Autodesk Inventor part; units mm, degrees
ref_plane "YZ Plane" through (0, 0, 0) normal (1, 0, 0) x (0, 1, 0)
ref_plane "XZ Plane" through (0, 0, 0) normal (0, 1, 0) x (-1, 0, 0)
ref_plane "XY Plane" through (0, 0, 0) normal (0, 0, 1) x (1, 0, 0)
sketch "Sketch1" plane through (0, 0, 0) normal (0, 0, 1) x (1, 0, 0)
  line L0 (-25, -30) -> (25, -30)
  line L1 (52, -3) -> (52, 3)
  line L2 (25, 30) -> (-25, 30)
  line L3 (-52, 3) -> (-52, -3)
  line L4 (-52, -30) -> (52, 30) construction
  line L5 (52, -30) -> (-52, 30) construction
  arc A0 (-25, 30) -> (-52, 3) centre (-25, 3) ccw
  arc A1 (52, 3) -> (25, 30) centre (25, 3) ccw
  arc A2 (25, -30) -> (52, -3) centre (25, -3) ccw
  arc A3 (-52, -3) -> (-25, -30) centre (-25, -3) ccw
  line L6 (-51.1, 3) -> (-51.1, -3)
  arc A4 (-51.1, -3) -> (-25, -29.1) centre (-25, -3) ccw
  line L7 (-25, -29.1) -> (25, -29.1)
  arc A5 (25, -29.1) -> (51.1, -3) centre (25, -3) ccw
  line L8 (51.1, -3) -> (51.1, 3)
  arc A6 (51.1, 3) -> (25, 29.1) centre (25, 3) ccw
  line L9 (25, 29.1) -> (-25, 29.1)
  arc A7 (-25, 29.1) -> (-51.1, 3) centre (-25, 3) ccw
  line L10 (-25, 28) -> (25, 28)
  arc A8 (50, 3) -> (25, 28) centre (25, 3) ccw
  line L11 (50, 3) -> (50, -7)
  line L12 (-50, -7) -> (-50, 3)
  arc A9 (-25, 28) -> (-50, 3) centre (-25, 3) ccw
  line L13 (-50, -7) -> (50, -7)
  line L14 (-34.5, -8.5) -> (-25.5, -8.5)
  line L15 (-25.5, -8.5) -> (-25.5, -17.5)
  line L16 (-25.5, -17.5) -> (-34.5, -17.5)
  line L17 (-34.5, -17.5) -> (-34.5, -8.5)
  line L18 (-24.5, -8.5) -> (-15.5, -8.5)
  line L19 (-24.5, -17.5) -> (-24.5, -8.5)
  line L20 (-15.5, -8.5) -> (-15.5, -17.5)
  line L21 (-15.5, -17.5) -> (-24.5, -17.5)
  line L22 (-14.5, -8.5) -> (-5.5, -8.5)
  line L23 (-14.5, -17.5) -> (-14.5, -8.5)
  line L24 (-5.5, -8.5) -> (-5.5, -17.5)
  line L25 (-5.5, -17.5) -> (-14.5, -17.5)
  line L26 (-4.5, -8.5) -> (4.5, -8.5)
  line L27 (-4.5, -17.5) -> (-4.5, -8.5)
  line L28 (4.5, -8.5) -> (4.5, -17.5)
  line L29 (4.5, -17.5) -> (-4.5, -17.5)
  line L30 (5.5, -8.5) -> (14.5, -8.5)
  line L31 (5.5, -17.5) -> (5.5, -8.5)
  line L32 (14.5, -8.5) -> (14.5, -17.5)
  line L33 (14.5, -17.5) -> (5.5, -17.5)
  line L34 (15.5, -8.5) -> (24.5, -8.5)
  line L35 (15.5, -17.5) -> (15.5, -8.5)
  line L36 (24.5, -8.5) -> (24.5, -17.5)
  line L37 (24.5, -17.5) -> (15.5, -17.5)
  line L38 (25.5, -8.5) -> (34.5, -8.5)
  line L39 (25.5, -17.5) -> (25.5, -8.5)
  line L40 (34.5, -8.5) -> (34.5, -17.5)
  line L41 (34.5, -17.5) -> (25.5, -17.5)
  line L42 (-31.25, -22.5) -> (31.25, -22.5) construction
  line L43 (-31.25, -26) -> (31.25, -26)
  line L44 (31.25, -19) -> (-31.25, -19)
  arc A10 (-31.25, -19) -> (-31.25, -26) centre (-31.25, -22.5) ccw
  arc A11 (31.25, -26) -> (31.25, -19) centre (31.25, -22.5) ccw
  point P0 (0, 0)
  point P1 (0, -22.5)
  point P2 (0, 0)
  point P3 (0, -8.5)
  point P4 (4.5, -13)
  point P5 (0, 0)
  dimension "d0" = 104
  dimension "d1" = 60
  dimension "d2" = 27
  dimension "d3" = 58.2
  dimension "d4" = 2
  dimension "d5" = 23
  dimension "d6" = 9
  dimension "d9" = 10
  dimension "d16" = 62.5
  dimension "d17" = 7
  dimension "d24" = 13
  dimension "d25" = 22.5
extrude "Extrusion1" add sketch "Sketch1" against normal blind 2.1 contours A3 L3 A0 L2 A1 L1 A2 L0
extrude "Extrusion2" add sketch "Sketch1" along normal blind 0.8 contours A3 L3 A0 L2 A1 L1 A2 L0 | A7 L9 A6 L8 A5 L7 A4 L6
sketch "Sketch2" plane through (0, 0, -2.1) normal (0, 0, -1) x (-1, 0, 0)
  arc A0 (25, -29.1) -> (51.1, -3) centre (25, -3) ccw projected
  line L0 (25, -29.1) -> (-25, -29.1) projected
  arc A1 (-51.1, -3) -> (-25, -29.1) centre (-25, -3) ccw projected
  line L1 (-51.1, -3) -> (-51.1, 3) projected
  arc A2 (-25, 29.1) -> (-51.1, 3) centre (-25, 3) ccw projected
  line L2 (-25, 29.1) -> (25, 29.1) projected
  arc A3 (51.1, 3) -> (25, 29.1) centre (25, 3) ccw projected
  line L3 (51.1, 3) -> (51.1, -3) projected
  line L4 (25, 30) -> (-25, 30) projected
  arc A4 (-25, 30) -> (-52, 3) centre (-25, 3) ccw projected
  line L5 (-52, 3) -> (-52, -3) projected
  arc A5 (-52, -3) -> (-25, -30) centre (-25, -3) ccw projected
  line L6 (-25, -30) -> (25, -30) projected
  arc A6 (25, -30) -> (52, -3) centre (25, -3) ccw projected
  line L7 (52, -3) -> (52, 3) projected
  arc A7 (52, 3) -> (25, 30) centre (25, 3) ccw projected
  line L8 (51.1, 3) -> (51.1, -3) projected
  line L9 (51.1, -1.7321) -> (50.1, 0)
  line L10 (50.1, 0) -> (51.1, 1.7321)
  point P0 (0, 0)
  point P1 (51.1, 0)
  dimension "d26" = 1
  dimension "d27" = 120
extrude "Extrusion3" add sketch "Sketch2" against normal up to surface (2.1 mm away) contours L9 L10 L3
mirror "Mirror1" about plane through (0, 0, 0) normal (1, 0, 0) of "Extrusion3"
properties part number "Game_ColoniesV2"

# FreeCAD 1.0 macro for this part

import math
import FreeCAD as App
import Part
import Sketcher
Q = App.Units.Quantity

doc = App.newDocument("Part")
body = doc.addObject("PartDesign::Body", "Body")

sketch1 = body.newObject("Sketcher::SketchObject", "Sketch")
sketch1.AttachmentSupport = (doc.getObject("XY_Plane"), [""])
sketch1.MapMode = "FlatFace"
sketch1.addGeometry(Part.ArcOfCircle(Part.Circle(App.Vector(-25, -3, 0), App.Vector(0, 0, 1), 27), math.radians(180), math.radians(270)), False)
sketch1.addGeometry(Part.LineSegment(App.Vector(-25, -30, 0), App.Vector(25, -30, 0)), False)
sketch1.addGeometry(Part.ArcOfCircle(Part.Circle(App.Vector(25, -3, 0), App.Vector(0, 0, 1), 27), math.radians(-90), math.radians(0)), False)
sketch1.addGeometry(Part.LineSegment(App.Vector(52, -3, 0), App.Vector(52, 3, 0)), False)
sketch1.addGeometry(Part.ArcOfCircle(Part.Circle(App.Vector(25, 3, 0), App.Vector(0, 0, 1), 27), math.radians(0), math.radians(90)), False)
sketch1.addGeometry(Part.LineSegment(App.Vector(25, 30, 0), App.Vector(-25, 30, 0)), False)
sketch1.addGeometry(Part.ArcOfCircle(Part.Circle(App.Vector(-25, 3, 0), App.Vector(0, 0, 1), 27), math.radians(90), math.radians(180)), False)
sketch1.addGeometry(Part.LineSegment(App.Vector(-52, 3, 0), App.Vector(-52, -3, 0)), False)
sketch1.addGeometry(Part.LineSegment(App.Vector(-51, -3, 0), App.Vector(-51, 3, 0)), False)
sketch1.addGeometry(Part.ArcOfCircle(Part.Circle(App.Vector(-25, 3, 0), App.Vector(0, 0, 1), 26), math.radians(90), math.radians(180)), False)
sketch1.addGeometry(Part.LineSegment(App.Vector(-25, 29, 0), App.Vector(25, 29, 0)), False)
sketch1.addGeometry(Part.ArcOfCircle(Part.Circle(App.Vector(25, 3, 0), App.Vector(0, 0, 1), 26), math.radians(0), math.radians(90)), False)
sketch1.addGeometry(Part.LineSegment(App.Vector(51, 3, 0), App.Vector(51, -3, 0)), False)
sketch1.addGeometry(Part.ArcOfCircle(Part.Circle(App.Vector(25, -3, 0), App.Vector(0, 0, 1), 26), math.radians(-90), math.radians(0)), False)
sketch1.addGeometry(Part.LineSegment(App.Vector(25, -29, 0), App.Vector(-25, -29, 0)), False)
sketch1.addGeometry(Part.ArcOfCircle(Part.Circle(App.Vector(-25, -3, 0), App.Vector(0, 0, 1), 26), math.radians(180), math.radians(270)), False)
sketch1.addConstraint(Sketcher.Constraint("Tangent", 0, 2, 1, 1))
sketch1.addConstraint(Sketcher.Constraint("Tangent", 1, 2, 2, 1))
sketch1.addConstraint(Sketcher.Constraint("Tangent", 2, 2, 3, 1))
sketch1.addConstraint(Sketcher.Constraint("Tangent", 3, 2, 4, 1))
sketch1.addConstraint(Sketcher.Constraint("Tangent", 4, 2, 5, 1))
sketch1.addConstraint(Sketcher.Constraint("Tangent", 5, 2, 6, 1))
sketch1.addConstraint(Sketcher.Constraint("Tangent", 6, 2, 7, 1))
sketch1.addConstraint(Sketcher.Constraint("Tangent", 7, 2, 0, 1))
sketch1.addConstraint(Sketcher.Constraint("Tangent", 8, 2, 9, 2))
sketch1.addConstraint(Sketcher.Constraint("Tangent", 9, 1, 10, 1))
sketch1.addConstraint(Sketcher.Constraint("Tangent", 10, 2, 11, 2))
sketch1.addConstraint(Sketcher.Constraint("Tangent", 11, 1, 12, 1))
sketch1.addConstraint(Sketcher.Constraint("Tangent", 12, 2, 13, 2))
sketch1.addConstraint(Sketcher.Constraint("Tangent", 13, 1, 14, 1))
sketch1.addConstraint(Sketcher.Constraint("Tangent", 14, 2, 15, 2))
sketch1.addConstraint(Sketcher.Constraint("Tangent", 15, 1, 8, 1))
sketch1.addConstraint(Sketcher.Constraint("Horizontal", 1))
sketch1.addConstraint(Sketcher.Constraint("Vertical", 3))
sketch1.addConstraint(Sketcher.Constraint("Horizontal", 5))
sketch1.addConstraint(Sketcher.Constraint("Vertical", 7))
sketch1.addConstraint(Sketcher.Constraint("Vertical", 8))
sketch1.addConstraint(Sketcher.Constraint("Horizontal", 10))
sketch1.addConstraint(Sketcher.Constraint("Vertical", 12))
sketch1.addConstraint(Sketcher.Constraint("Horizontal", 14))
sketch1.addConstraint(Sketcher.Constraint("Coincident", 9, 3, 6, 3))
sketch1.addConstraint(Sketcher.Constraint("Coincident", 11, 3, 4, 3))
sketch1.addConstraint(Sketcher.Constraint("Coincident", 13, 3, 2, 3))
sketch1.addConstraint(Sketcher.Constraint("Equal", 0, 2))
sketch1.addConstraint(Sketcher.Constraint("Equal", 2, 4))
sketch1.addConstraint(Sketcher.Constraint("Equal", 4, 6))
sketch1.addConstraint(Sketcher.Constraint("Equal", 13, 15))
sketch1.addConstraint(Sketcher.Constraint("Symmetric", 0, 3, 4, 3, -1, 1))
sketch1.addConstraint(Sketcher.Constraint("Radius", 0, 27.0))
sketch1.addConstraint(Sketcher.Constraint("Radius", 9, 26.1))
sketch1.addConstraint(Sketcher.Constraint("DistanceX", 1, 1, 1, 2, 50.0))
sketch1.addConstraint(Sketcher.Constraint("DistanceY", 3, 1, 3, 2, 6.0))
pad1 = body.newObject("PartDesign::Pad", "Pad")
pad1.Profile = sketch1
pad1.Length = 2.1
pad1.Reversed = True

sketch2 = body.newObject("Sketcher::SketchObject", "Sketch001")
sketch2.AttachmentSupport = (doc.getObject("XY_Plane"), [""])
sketch2.MapMode = "FlatFace"
sketch2.addGeometry(Part.ArcOfCircle(Part.Circle(App.Vector(-25, -3, 0), App.Vector(0, 0, 1), 27), math.radians(180), math.radians(270)), False)
sketch2.addGeometry(Part.LineSegment(App.Vector(-25, -30, 0), App.Vector(25, -30, 0)), False)
sketch2.addGeometry(Part.ArcOfCircle(Part.Circle(App.Vector(25, -3, 0), App.Vector(0, 0, 1), 27), math.radians(-90), math.radians(0)), False)
sketch2.addGeometry(Part.LineSegment(App.Vector(52, -3, 0), App.Vector(52, 3, 0)), False)
sketch2.addGeometry(Part.ArcOfCircle(Part.Circle(App.Vector(25, 3, 0), App.Vector(0, 0, 1), 27), math.radians(0), math.radians(90)), False)
sketch2.addGeometry(Part.LineSegment(App.Vector(25, 30, 0), App.Vector(-25, 30, 0)), False)
sketch2.addGeometry(Part.ArcOfCircle(Part.Circle(App.Vector(-25, 3, 0), App.Vector(0, 0, 1), 27), math.radians(90), math.radians(180)), False)
sketch2.addGeometry(Part.LineSegment(App.Vector(-52, 3, 0), App.Vector(-52, -3, 0)), False)
sketch2.addGeometry(Part.LineSegment(App.Vector(34.5, -8.5, 0), App.Vector(34.5, -17.5, 0)), False)
sketch2.addGeometry(Part.LineSegment(App.Vector(34.5, -17.5, 0), App.Vector(25.5, -17.5, 0)), False)
sketch2.addGeometry(Part.LineSegment(App.Vector(25.5, -17.5, 0), App.Vector(25.5, -8.5, 0)), False)
sketch2.addGeometry(Part.LineSegment(App.Vector(25.5, -8.5, 0), App.Vector(34.5, -8.5, 0)), False)
sketch2.addGeometry(Part.ArcOfCircle(Part.Circle(App.Vector(-25, 3, 0), App.Vector(0, 0, 1), 25), math.radians(90), math.radians(180)), False)
sketch2.addGeometry(Part.LineSegment(App.Vector(-25, 28, 0), App.Vector(25, 28, 0)), False)
sketch2.addGeometry(Part.ArcOfCircle(Part.Circle(App.Vector(25, 3, 0), App.Vector(0, 0, 1), 25), math.radians(0), math.radians(90)), False)
sketch2.addGeometry(Part.LineSegment(App.Vector(50, 3, 0), App.Vector(50, -7, 0)), False)
sketch2.addGeometry(Part.LineSegment(App.Vector(50, -7, 0), App.Vector(-50, -7, 0)), False)
sketch2.addGeometry(Part.LineSegment(App.Vector(-50, -7, 0), App.Vector(-50, 3, 0)), False)
sketch2.addGeometry(Part.LineSegment(App.Vector(-34.5, -17.5, 0), App.Vector(-34.5, -8.5, 0)), False)
sketch2.addGeometry(Part.LineSegment(App.Vector(-34.5, -8.5, 0), App.Vector(-25.5, -8.5, 0)), False)
sketch2.addGeometry(Part.LineSegment(App.Vector(-25.5, -8.5, 0), App.Vector(-25.5, -17.5, 0)), False)
sketch2.addGeometry(Part.LineSegment(App.Vector(-25.5, -17.5, 0), App.Vector(-34.5, -17.5, 0)), False)
sketch2.addGeometry(Part.LineSegment(App.Vector(-24.5, -17.5, 0), App.Vector(-24.5, -8.5, 0)), False)
sketch2.addGeometry(Part.LineSegment(App.Vector(-24.5, -8.5, 0), App.Vector(-15.5, -8.5, 0)), False)
sketch2.addGeometry(Part.LineSegment(App.Vector(-15.5, -8.5, 0), App.Vector(-15.5, -17.5, 0)), False)
sketch2.addGeometry(Part.LineSegment(App.Vector(-15.5, -17.5, 0), App.Vector(-24.5, -17.5, 0)), False)
sketch2.addGeometry(Part.LineSegment(App.Vector(-14.5, -17.5, 0), App.Vector(-14.5, -8.5, 0)), False)
sketch2.addGeometry(Part.LineSegment(App.Vector(-14.5, -8.5, 0), App.Vector(-5.5, -8.5, 0)), False)
sketch2.addGeometry(Part.LineSegment(App.Vector(-5.5, -8.5, 0), App.Vector(-5.5, -17.5, 0)), False)
sketch2.addGeometry(Part.LineSegment(App.Vector(-5.5, -17.5, 0), App.Vector(-14.5, -17.5, 0)), False)
sketch2.addGeometry(Part.LineSegment(App.Vector(31.2, -26, 0), App.Vector(-31.2, -26, 0)), False)
sketch2.addGeometry(Part.ArcOfCircle(Part.Circle(App.Vector(-31.2, -22.5, 0), App.Vector(0, 0, 1), 3.5), math.radians(90), math.radians(270)), False)
sketch2.addGeometry(Part.LineSegment(App.Vector(-31.2, -19, 0), App.Vector(31.2, -19, 0)), False)
sketch2.addGeometry(Part.ArcOfCircle(Part.Circle(App.Vector(31.2, -22.5, 0), App.Vector(0, 0, 1), 3.5), math.radians(-90), math.radians(90)), False)
sketch2.addGeometry(Part.LineSegment(App.Vector(-4.5, -17.5, 0), App.Vector(-4.5, -8.5, 0)), False)
sketch2.addGeometry(Part.LineSegment(App.Vector(-4.5, -8.5, 0), App.Vector(4.5, -8.5, 0)), False)
sketch2.addGeometry(Part.LineSegment(App.Vector(4.5, -8.5, 0), App.Vector(4.5, -17.5, 0)), False)
sketch2.addGeometry(Part.LineSegment(App.Vector(4.5, -17.5, 0), App.Vector(-4.5, -17.5, 0)), False)
sketch2.addGeometry(Part.LineSegment(App.Vector(5.5, -17.5, 0), App.Vector(5.5, -8.5, 0)), False)
sketch2.addGeometry(Part.LineSegment(App.Vector(5.5, -8.5, 0), App.Vector(14.5, -8.5, 0)), False)
sketch2.addGeometry(Part.LineSegment(App.Vector(14.5, -8.5, 0), App.Vector(14.5, -17.5, 0)), False)
sketch2.addGeometry(Part.LineSegment(App.Vector(14.5, -17.5, 0), App.Vector(5.5, -17.5, 0)), False)
sketch2.addGeometry(Part.LineSegment(App.Vector(15.5, -17.5, 0), App.Vector(15.5, -8.5, 0)), False)
sketch2.addGeometry(Part.LineSegment(App.Vector(15.5, -8.5, 0), App.Vector(24.5, -8.5, 0)), False)
sketch2.addGeometry(Part.LineSegment(App.Vector(24.5, -8.5, 0), App.Vector(24.5, -17.5, 0)), False)
sketch2.addGeometry(Part.LineSegment(App.Vector(24.5, -17.5, 0), App.Vector(15.5, -17.5, 0)), False)
sketch2.addConstraint(Sketcher.Constraint("Tangent", 0, 2, 1, 1))
sketch2.addConstraint(Sketcher.Constraint("Tangent", 1, 2, 2, 1))
sketch2.addConstraint(Sketcher.Constraint("Tangent", 2, 2, 3, 1))
sketch2.addConstraint(Sketcher.Constraint("Tangent", 3, 2, 4, 1))
sketch2.addConstraint(Sketcher.Constraint("Tangent", 4, 2, 5, 1))
sketch2.addConstraint(Sketcher.Constraint("Tangent", 5, 2, 6, 1))
sketch2.addConstraint(Sketcher.Constraint("Tangent", 6, 2, 7, 1))
sketch2.addConstraint(Sketcher.Constraint("Tangent", 7, 2, 0, 1))
sketch2.addConstraint(Sketcher.Constraint("Coincident", 8, 2, 9, 1))
sketch2.addConstraint(Sketcher.Constraint("Coincident", 9, 2, 10, 1))
sketch2.addConstraint(Sketcher.Constraint("Coincident", 10, 2, 11, 1))
sketch2.addConstraint(Sketcher.Constraint("Coincident", 11, 2, 8, 1))
sketch2.addConstraint(Sketcher.Constraint("Tangent", 12, 1, 13, 1))
sketch2.addConstraint(Sketcher.Constraint("Tangent", 13, 2, 14, 2))
sketch2.addConstraint(Sketcher.Constraint("Tangent", 14, 1, 15, 1))
sketch2.addConstraint(Sketcher.Constraint("Coincident", 15, 2, 16, 1))
sketch2.addConstraint(Sketcher.Constraint("Coincident", 16, 2, 17, 1))
sketch2.addConstraint(Sketcher.Constraint("Tangent", 17, 2, 12, 2))
sketch2.addConstraint(Sketcher.Constraint("Coincident", 18, 2, 19, 1))
sketch2.addConstraint(Sketcher.Constraint("Coincident", 19, 2, 20, 1))
sketch2.addConstraint(Sketcher.Constraint("Coincident", 20, 2, 21, 1))
sketch2.addConstraint(Sketcher.Constraint("Coincident", 21, 2, 18, 1))
sketch2.addConstraint(Sketcher.Constraint("Coincident", 22, 2, 23, 1))
sketch2.addConstraint(Sketcher.Constraint("Coincident", 23, 2, 24, 1))
sketch2.addConstraint(Sketcher.Constraint("Coincident", 24, 2, 25, 1))
sketch2.addConstraint(Sketcher.Constraint("Coincident", 25, 2, 22, 1))
sketch2.addConstraint(Sketcher.Constraint("Coincident", 26, 2, 27, 1))
sketch2.addConstraint(Sketcher.Constraint("Coincident", 27, 2, 28, 1))
sketch2.addConstraint(Sketcher.Constraint("Coincident", 28, 2, 29, 1))
sketch2.addConstraint(Sketcher.Constraint("Coincident", 29, 2, 26, 1))
sketch2.addConstraint(Sketcher.Constraint("Tangent", 30, 2, 31, 2))
sketch2.addConstraint(Sketcher.Constraint("Tangent", 31, 1, 32, 1))
sketch2.addConstraint(Sketcher.Constraint("Tangent", 32, 2, 33, 2))
sketch2.addConstraint(Sketcher.Constraint("Tangent", 33, 1, 30, 1))
sketch2.addConstraint(Sketcher.Constraint("Coincident", 34, 2, 35, 1))
sketch2.addConstraint(Sketcher.Constraint("Coincident", 35, 2, 36, 1))
sketch2.addConstraint(Sketcher.Constraint("Coincident", 36, 2, 37, 1))
sketch2.addConstraint(Sketcher.Constraint("Coincident", 37, 2, 34, 1))
sketch2.addConstraint(Sketcher.Constraint("Coincident", 38, 2, 39, 1))
sketch2.addConstraint(Sketcher.Constraint("Coincident", 39, 2, 40, 1))
sketch2.addConstraint(Sketcher.Constraint("Coincident", 40, 2, 41, 1))
sketch2.addConstraint(Sketcher.Constraint("Coincident", 41, 2, 38, 1))
sketch2.addConstraint(Sketcher.Constraint("Coincident", 42, 2, 43, 1))
sketch2.addConstraint(Sketcher.Constraint("Coincident", 43, 2, 44, 1))
sketch2.addConstraint(Sketcher.Constraint("Coincident", 44, 2, 45, 1))
sketch2.addConstraint(Sketcher.Constraint("Coincident", 45, 2, 42, 1))
sketch2.addConstraint(Sketcher.Constraint("Horizontal", 1))
sketch2.addConstraint(Sketcher.Constraint("Vertical", 3))
sketch2.addConstraint(Sketcher.Constraint("Horizontal", 5))
sketch2.addConstraint(Sketcher.Constraint("Vertical", 7))
sketch2.addConstraint(Sketcher.Constraint("Vertical", 8))
sketch2.addConstraint(Sketcher.Constraint("Horizontal", 9))
sketch2.addConstraint(Sketcher.Constraint("Vertical", 10))
sketch2.addConstraint(Sketcher.Constraint("Horizontal", 11))
sketch2.addConstraint(Sketcher.Constraint("Horizontal", 13))
sketch2.addConstraint(Sketcher.Constraint("Vertical", 15))
sketch2.addConstraint(Sketcher.Constraint("Horizontal", 16))
sketch2.addConstraint(Sketcher.Constraint("Vertical", 17))
sketch2.addConstraint(Sketcher.Constraint("Vertical", 18))
sketch2.addConstraint(Sketcher.Constraint("Horizontal", 19))
sketch2.addConstraint(Sketcher.Constraint("Vertical", 20))
sketch2.addConstraint(Sketcher.Constraint("Horizontal", 21))
sketch2.addConstraint(Sketcher.Constraint("Vertical", 22))
sketch2.addConstraint(Sketcher.Constraint("Horizontal", 23))
sketch2.addConstraint(Sketcher.Constraint("Vertical", 24))
sketch2.addConstraint(Sketcher.Constraint("Horizontal", 25))
sketch2.addConstraint(Sketcher.Constraint("Vertical", 26))
sketch2.addConstraint(Sketcher.Constraint("Horizontal", 27))
sketch2.addConstraint(Sketcher.Constraint("Vertical", 28))
sketch2.addConstraint(Sketcher.Constraint("Horizontal", 29))
sketch2.addConstraint(Sketcher.Constraint("Horizontal", 30))
sketch2.addConstraint(Sketcher.Constraint("Horizontal", 32))
sketch2.addConstraint(Sketcher.Constraint("Vertical", 34))
sketch2.addConstraint(Sketcher.Constraint("Horizontal", 35))
sketch2.addConstraint(Sketcher.Constraint("Vertical", 36))
sketch2.addConstraint(Sketcher.Constraint("Horizontal", 37))
sketch2.addConstraint(Sketcher.Constraint("Vertical", 38))
sketch2.addConstraint(Sketcher.Constraint("Horizontal", 39))
sketch2.addConstraint(Sketcher.Constraint("Vertical", 40))
sketch2.addConstraint(Sketcher.Constraint("Horizontal", 41))
sketch2.addConstraint(Sketcher.Constraint("Vertical", 42))
sketch2.addConstraint(Sketcher.Constraint("Horizontal", 43))
sketch2.addConstraint(Sketcher.Constraint("Vertical", 44))
sketch2.addConstraint(Sketcher.Constraint("Horizontal", 45))
sketch2.addConstraint(Sketcher.Constraint("Coincident", 12, 3, 6, 3))
sketch2.addConstraint(Sketcher.Constraint("Coincident", 14, 3, 4, 3))
sketch2.addConstraint(Sketcher.Constraint("Equal", 0, 2))
sketch2.addConstraint(Sketcher.Constraint("Equal", 2, 4))
sketch2.addConstraint(Sketcher.Constraint("Equal", 4, 6))
sketch2.addConstraint(Sketcher.Constraint("Symmetric", 0, 3, 4, 3, -1, 1))
sketch2.addConstraint(Sketcher.Constraint("Symmetric", 11, 2, 18, 2, -2))
sketch2.addConstraint(Sketcher.Constraint("Symmetric", 9, 2, 20, 2, -2))
sketch2.addConstraint(Sketcher.Constraint("Symmetric", 27, 2, 38, 2, -2))
sketch2.addConstraint(Sketcher.Constraint("Symmetric", 29, 2, 40, 2, -2))
sketch2.addConstraint(Sketcher.Constraint("Symmetric", 23, 2, 42, 2, -2))
sketch2.addConstraint(Sketcher.Constraint("Symmetric", 25, 2, 44, 2, -2))
sketch2.addConstraint(Sketcher.Constraint("Horizontal", 19, 2, 22, 2))
sketch2.addConstraint(Sketcher.Constraint("Horizontal", 21, 2, 24, 2))
sketch2.addConstraint(Sketcher.Constraint("Horizontal", 23, 2, 26, 2))
sketch2.addConstraint(Sketcher.Constraint("Horizontal", 25, 2, 28, 2))
sketch2.addConstraint(Sketcher.Constraint("Horizontal", 27, 2, 34, 2))
sketch2.addConstraint(Sketcher.Constraint("Horizontal", 29, 2, 36, 2))
sketch2.addConstraint(Sketcher.Constraint("Equal", 21, 23))
sketch2.addConstraint(Sketcher.Constraint("Equal", 25, 27))
sketch2.addConstraint(Sketcher.Constraint("Equal", 29, 35))
sketch2.addConstraint(Sketcher.Constraint("Equal", 45, 8))
sketch2.addConstraint(Sketcher.Constraint("Radius", 0, 27.0))
sketch2.addConstraint(Sketcher.Constraint("Radius", 31, 3.5))
sketch2.addConstraint(Sketcher.Constraint("DistanceX", 9, 2, 9, 1, 9.0))
sketch2.addConstraint(Sketcher.Constraint("DistanceY", 15, 2, 15, 1, 10.0))
sketch2.addConstraint(Sketcher.Constraint("DistanceX", 30, 2, 30, 1, 62.5))
sketch2.addConstraint(Sketcher.Constraint("DistanceY", 15, 2, -1, 1, 7.0))
sketch2.addConstraint(Sketcher.Constraint("Radius", 12, 25.0))
sketch2.addConstraint(Sketcher.Constraint("DistanceX", 18, 2, 22, 2, 10.0))
sketch2.addConstraint(Sketcher.Constraint("DistanceX", 22, 2, 26, 2, 10.0))
sketch2.addConstraint(Sketcher.Constraint("DistanceX", 26, 2, 34, 2, 10.0))
sketch2.addConstraint(Sketcher.Constraint("DistanceX", 34, 2, 38, 2, 10.0))
sketch2.addConstraint(Sketcher.Constraint("DistanceY", 31, 3, -1, 1, 22.5))
sketch2.addConstraint(Sketcher.Constraint("DistanceX", 1, 1, 1, 2, 50.0))
sketch2.addConstraint(Sketcher.Constraint("DistanceY", 33, 3, 8, 2, 5.0))
sketch2.addConstraint(Sketcher.Constraint("DistanceX", 31, 3, -1, 1, 31.25))
pad2 = body.newObject("PartDesign::Pad", "Pad001")
pad2.Profile = sketch2
pad2.Length = 0.8

sketch3 = body.newObject("Sketcher::SketchObject", "Sketch002")
sketch3.AttachmentSupport = (doc.getObject("XY_Plane"), [""])
sketch3.MapMode = "FlatFace"
sketch3.AttachmentOffset = App.Placement(App.Vector(0, 0, -2.1), App.Rotation())
sketch3.addGeometry(Part.LineSegment(App.Vector(-50.1, 0, 0), App.Vector(-51.1, -1.7, 0)), False)
sketch3.addGeometry(Part.LineSegment(App.Vector(-51.1, -1.7, 0), App.Vector(-51.1, 1.7, 0)), False)
sketch3.addGeometry(Part.LineSegment(App.Vector(-51.1, 1.7, 0), App.Vector(-50.1, 0, 0)), False)
sketch3.addConstraint(Sketcher.Constraint("Coincident", 0, 2, 1, 1))
sketch3.addConstraint(Sketcher.Constraint("Coincident", 1, 2, 2, 1))
sketch3.addConstraint(Sketcher.Constraint("Coincident", 2, 2, 0, 1))
sketch3.addConstraint(Sketcher.Constraint("Vertical", 1))
sketch3.addConstraint(Sketcher.Constraint("PointOnObject", 2, 2, -1))
sketch3.addConstraint(Sketcher.Constraint("Equal", 0, 2))
sketch3.addConstraint(Sketcher.Constraint("DistanceX", 0, 2, 2, 2, 1.0))
sketch3.addConstraint(Sketcher.Constraint("Angle", 0, Q("-119.9993 deg")))
sketch3.addConstraint(Sketcher.Constraint("DistanceX", 0, 2, -1, 1, 51.1))
pad3 = body.newObject("PartDesign::Pad", "Pad002")
pad3.Profile = sketch3
pad3.Length = 2.1
doc.recompute()

mirrored = body.newObject("PartDesign::Mirrored", "Mirrored")
mirrored.Originals = [pad3]
mirrored.MirrorPlane = (doc.getObject("YZ_Plane"), [""])
body.Tip = mirrored

doc.recompute()
